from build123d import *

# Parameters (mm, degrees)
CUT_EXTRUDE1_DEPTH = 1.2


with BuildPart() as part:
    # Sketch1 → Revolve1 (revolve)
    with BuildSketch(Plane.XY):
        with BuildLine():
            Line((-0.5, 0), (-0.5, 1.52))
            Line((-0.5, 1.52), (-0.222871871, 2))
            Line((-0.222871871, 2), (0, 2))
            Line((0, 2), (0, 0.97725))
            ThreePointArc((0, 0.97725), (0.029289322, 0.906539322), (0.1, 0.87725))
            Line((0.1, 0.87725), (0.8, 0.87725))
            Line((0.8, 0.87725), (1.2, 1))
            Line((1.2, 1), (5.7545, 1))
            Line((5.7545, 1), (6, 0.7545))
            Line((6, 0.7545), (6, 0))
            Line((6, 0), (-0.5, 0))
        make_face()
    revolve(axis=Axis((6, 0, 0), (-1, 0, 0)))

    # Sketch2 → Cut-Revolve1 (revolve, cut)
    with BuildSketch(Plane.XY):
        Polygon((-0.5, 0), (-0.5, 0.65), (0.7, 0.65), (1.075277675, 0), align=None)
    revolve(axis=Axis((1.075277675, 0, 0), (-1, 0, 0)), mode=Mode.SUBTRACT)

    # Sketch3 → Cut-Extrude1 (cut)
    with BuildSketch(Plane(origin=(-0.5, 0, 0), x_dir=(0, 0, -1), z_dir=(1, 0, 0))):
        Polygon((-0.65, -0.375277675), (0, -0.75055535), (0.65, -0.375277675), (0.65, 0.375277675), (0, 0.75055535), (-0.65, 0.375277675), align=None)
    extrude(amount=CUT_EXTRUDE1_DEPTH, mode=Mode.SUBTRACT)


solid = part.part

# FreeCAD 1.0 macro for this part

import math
import FreeCAD as App
import Part
import Sketcher
from FreeCAD import Vector
Q = App.Units.Quantity


def add_polygon(sketch, points):
    """Adds a closed chain of lines whose ends are joined by coincident constraints."""
    first, n = sketch.GeometryCount, len(points)
    for a, b in zip(points, points[1:] + points[:1]):
        sketch.addGeometry(Part.LineSegment(App.Vector(*a, 0), App.Vector(*b, 0)), False)
    for i in range(n):
        sketch.addConstraint(Sketcher.Constraint("Coincident", first + i, 2, first + (i + 1) % n, 1))

doc = App.newDocument("Part")
body = doc.addObject("PartDesign::Body", "Body")

sketch1 = doc.addObject("Sketcher::SketchObject", "Sketch")
body.addObject(sketch1)
sketch1.AttachmentSupport = (doc.XY_Plane, [""])
sketch1.MapMode = "FlatFace"
sketch1.addGeometry(Part.LineSegment(Vector(-0.5, 1.52, 0), Vector(-0.5, 0, 0)), False)
sketch1.addGeometry(Part.LineSegment(Vector(-0.5, 0, 0), Vector(6, 0, 0)), False)
sketch1.addGeometry(Part.LineSegment(Vector(6, 0, 0), Vector(6, 0.75, 0)), False)
sketch1.addGeometry(Part.LineSegment(Vector(6, 0.75, 0), Vector(5.75, 1, 0)), False)
sketch1.addGeometry(Part.LineSegment(Vector(5.75, 1, 0), Vector(1.2, 1, 0)), False)
sketch1.addGeometry(Part.LineSegment(Vector(1.2, 1, 0), Vector(0.8, 0.88, 0)), False)
sketch1.addGeometry(Part.LineSegment(Vector(0.8, 0.88, 0), Vector(0.1, 0.88, 0)), False)
sketch1.addGeometry(Part.ArcOfCircle(Part.Circle(Vector(0.1, 0.98, 0), Vector(0, 0, 1), 0.1), math.radians(180), math.radians(270)), False)
sketch1.addGeometry(Part.LineSegment(Vector(0, 0.98, 0), Vector(0, 2, 0)), False)
sketch1.addGeometry(Part.LineSegment(Vector(0, 2, 0), Vector(-0.22, 2, 0)), False)
sketch1.addGeometry(Part.LineSegment(Vector(-0.22, 2, 0), Vector(-0.5, 1.52, 0)), False)
sketch1.addConstraint(Sketcher.Constraint("Coincident", 0, 2, 1, 1))
sketch1.addConstraint(Sketcher.Constraint("Coincident", 1, 2, 2, 1))
sketch1.addConstraint(Sketcher.Constraint("Coincident", 2, 2, 3, 1))
sketch1.addConstraint(Sketcher.Constraint("Coincident", 3, 2, 4, 1))
sketch1.addConstraint(Sketcher.Constraint("Coincident", 4, 2, 5, 1))
sketch1.addConstraint(Sketcher.Constraint("Coincident", 5, 2, 6, 1))
sketch1.addConstraint(Sketcher.Constraint("Tangent", 6, 2, 7, 2))
sketch1.addConstraint(Sketcher.Constraint("Tangent", 7, 1, 8, 1))
sketch1.addConstraint(Sketcher.Constraint("Coincident", 8, 2, 9, 1))
sketch1.addConstraint(Sketcher.Constraint("Coincident", 9, 2, 10, 1))
sketch1.addConstraint(Sketcher.Constraint("Coincident", 10, 2, 0, 1))
sketch1.addConstraint(Sketcher.Constraint("Vertical", 0))
sketch1.addConstraint(Sketcher.Constraint("Horizontal", 1))
sketch1.addConstraint(Sketcher.Constraint("Vertical", 2))
sketch1.addConstraint(Sketcher.Constraint("Horizontal", 4))
sketch1.addConstraint(Sketcher.Constraint("Horizontal", 6))
sketch1.addConstraint(Sketcher.Constraint("Vertical", 8))
sketch1.addConstraint(Sketcher.Constraint("Horizontal", 9))
sketch1.addConstraint(Sketcher.Constraint("PointOnObject", 0, 2, -1))
sketch1.addConstraint(Sketcher.Constraint("PointOnObject", 7, 1, -2))
sketch1.addConstraint(Sketcher.Constraint("Radius", 7, 0.1))
sketch1.addConstraint(Sketcher.Constraint("Angle", 3, Q("135 deg")))
sketch1.addConstraint(Sketcher.Constraint("Angle", 10, Q("-120 deg")))
sketch1.addConstraint(Sketcher.Constraint("DistanceX", 1, 1, 1, 2, 6.5))
sketch1.addConstraint(Sketcher.Constraint("DistanceX", 6, 2, 6, 1, 0.7))
sketch1.addConstraint(Sketcher.Constraint("DistanceX", -1, 1, 1, 2, 6.0))
sketch1.addConstraint(Sketcher.Constraint("DistanceY", -1, 1, 3, 2, 1.0))
sketch1.addConstraint(Sketcher.Constraint("DistanceY", -1, 1, 8, 2, 2.0))
sketch1.addConstraint(Sketcher.Constraint("DistanceY", 0, 2, 0, 1, 1.52))
sketch1.addConstraint(Sketcher.Constraint("DistanceX", -1, 1, 4, 2, 1.2))
sketch1.addConstraint(Sketcher.Constraint("DistanceX", 4, 2, 4, 1, 4.5545))
sketch1.addConstraint(Sketcher.Constraint("DistanceY", 8, 1, 8, 2, 1.02275))
revolution = doc.addObject("PartDesign::Revolution", "Revolution")
body.addObject(revolution)
revolution.Profile = sketch1
revolution.ReferenceAxis = (sketch1, ["H_Axis"])
revolution.Angle = 360

sketch2 = doc.addObject("Sketcher::SketchObject", "Sketch001")
body.addObject(sketch2)
sketch2.AttachmentSupport = (doc.XY_Plane, [""])
sketch2.MapMode = "FlatFace"
add_polygon(sketch2, [(-0.5, 0.7), (-0.5, 0), (1.1, 0), (0.7, 0.7)])
sketch2.addConstraint(Sketcher.Constraint("Vertical", 0))
sketch2.addConstraint(Sketcher.Constraint("Horizontal", 1))
sketch2.addConstraint(Sketcher.Constraint("Horizontal", 3))
sketch2.addConstraint(Sketcher.Constraint("PointOnObject", 0, 2, -1))
sketch2.addConstraint(Sketcher.Constraint("Angle", 2, Q("120 deg")))
sketch2.addConstraint(Sketcher.Constraint("DistanceX", 3, 2, 3, 1, 1.2))
sketch2.addConstraint(Sketcher.Constraint("DistanceY", 0, 2, 0, 1, 0.65))
sketch2.addConstraint(Sketcher.Constraint("DistanceX", 0, 2, -1, 1, 0.5))
groove = doc.addObject("PartDesign::Groove", "Groove")
body.addObject(groove)
groove.Profile = sketch2
groove.ReferenceAxis = (sketch2, ["H_Axis"])
groove.Angle = 360

sketch3 = doc.addObject("Sketcher::SketchObject", "Sketch002")
body.addObject(sketch3)
sketch3.AttachmentSupport = (doc.YZ_Plane, [""])
sketch3.MapMode = "FlatFace"
sketch3.AttachmentOffset = App.Placement(Vector(0, 0, -0.5), App.Rotation())
add_polygon(sketch3, [(-0.4, 0.7), (-0.8, 0), (-0.4, -0.7), (0.4, -0.7), (0.8, 0), (0.4, 0.7)])
sketch3.addConstraint(Sketcher.Constraint("Horizontal", 2))
sketch3.addConstraint(Sketcher.Constraint("Horizontal", 5))
sketch3.addConstraint(Sketcher.Constraint("Symmetric", 0, 2, 3, 2, -1, 1))
sketch3.addConstraint(Sketcher.Constraint("Symmetric", 1, 2, 4, 2, -1, 1))
sketch3.addConstraint(Sketcher.Constraint("PointOnObject", 0, 2, -1))
sketch3.addConstraint(Sketcher.Constraint("Parallel", 0, 3))
sketch3.addConstraint(Sketcher.Constraint("Vertical", 2, 2, 4, 2))
sketch3.addConstraint(Sketcher.Constraint("Angle", 0, Q("-120 deg")))
sketch3.addConstraint(Sketcher.Constraint("DistanceY", 2, 2, 4, 2, 1.3))
sketch3.addConstraint(Sketcher.Constraint("DistanceX", 2, 1, 2, 2, 0.750555))
pocket1 = doc.addObject("PartDesign::Pocket", "Pocket")
body.addObject(pocket1)
pocket1.Profile = sketch3
pocket1.Length = 1.2
pocket1.Reversed = True

doc.recompute()
